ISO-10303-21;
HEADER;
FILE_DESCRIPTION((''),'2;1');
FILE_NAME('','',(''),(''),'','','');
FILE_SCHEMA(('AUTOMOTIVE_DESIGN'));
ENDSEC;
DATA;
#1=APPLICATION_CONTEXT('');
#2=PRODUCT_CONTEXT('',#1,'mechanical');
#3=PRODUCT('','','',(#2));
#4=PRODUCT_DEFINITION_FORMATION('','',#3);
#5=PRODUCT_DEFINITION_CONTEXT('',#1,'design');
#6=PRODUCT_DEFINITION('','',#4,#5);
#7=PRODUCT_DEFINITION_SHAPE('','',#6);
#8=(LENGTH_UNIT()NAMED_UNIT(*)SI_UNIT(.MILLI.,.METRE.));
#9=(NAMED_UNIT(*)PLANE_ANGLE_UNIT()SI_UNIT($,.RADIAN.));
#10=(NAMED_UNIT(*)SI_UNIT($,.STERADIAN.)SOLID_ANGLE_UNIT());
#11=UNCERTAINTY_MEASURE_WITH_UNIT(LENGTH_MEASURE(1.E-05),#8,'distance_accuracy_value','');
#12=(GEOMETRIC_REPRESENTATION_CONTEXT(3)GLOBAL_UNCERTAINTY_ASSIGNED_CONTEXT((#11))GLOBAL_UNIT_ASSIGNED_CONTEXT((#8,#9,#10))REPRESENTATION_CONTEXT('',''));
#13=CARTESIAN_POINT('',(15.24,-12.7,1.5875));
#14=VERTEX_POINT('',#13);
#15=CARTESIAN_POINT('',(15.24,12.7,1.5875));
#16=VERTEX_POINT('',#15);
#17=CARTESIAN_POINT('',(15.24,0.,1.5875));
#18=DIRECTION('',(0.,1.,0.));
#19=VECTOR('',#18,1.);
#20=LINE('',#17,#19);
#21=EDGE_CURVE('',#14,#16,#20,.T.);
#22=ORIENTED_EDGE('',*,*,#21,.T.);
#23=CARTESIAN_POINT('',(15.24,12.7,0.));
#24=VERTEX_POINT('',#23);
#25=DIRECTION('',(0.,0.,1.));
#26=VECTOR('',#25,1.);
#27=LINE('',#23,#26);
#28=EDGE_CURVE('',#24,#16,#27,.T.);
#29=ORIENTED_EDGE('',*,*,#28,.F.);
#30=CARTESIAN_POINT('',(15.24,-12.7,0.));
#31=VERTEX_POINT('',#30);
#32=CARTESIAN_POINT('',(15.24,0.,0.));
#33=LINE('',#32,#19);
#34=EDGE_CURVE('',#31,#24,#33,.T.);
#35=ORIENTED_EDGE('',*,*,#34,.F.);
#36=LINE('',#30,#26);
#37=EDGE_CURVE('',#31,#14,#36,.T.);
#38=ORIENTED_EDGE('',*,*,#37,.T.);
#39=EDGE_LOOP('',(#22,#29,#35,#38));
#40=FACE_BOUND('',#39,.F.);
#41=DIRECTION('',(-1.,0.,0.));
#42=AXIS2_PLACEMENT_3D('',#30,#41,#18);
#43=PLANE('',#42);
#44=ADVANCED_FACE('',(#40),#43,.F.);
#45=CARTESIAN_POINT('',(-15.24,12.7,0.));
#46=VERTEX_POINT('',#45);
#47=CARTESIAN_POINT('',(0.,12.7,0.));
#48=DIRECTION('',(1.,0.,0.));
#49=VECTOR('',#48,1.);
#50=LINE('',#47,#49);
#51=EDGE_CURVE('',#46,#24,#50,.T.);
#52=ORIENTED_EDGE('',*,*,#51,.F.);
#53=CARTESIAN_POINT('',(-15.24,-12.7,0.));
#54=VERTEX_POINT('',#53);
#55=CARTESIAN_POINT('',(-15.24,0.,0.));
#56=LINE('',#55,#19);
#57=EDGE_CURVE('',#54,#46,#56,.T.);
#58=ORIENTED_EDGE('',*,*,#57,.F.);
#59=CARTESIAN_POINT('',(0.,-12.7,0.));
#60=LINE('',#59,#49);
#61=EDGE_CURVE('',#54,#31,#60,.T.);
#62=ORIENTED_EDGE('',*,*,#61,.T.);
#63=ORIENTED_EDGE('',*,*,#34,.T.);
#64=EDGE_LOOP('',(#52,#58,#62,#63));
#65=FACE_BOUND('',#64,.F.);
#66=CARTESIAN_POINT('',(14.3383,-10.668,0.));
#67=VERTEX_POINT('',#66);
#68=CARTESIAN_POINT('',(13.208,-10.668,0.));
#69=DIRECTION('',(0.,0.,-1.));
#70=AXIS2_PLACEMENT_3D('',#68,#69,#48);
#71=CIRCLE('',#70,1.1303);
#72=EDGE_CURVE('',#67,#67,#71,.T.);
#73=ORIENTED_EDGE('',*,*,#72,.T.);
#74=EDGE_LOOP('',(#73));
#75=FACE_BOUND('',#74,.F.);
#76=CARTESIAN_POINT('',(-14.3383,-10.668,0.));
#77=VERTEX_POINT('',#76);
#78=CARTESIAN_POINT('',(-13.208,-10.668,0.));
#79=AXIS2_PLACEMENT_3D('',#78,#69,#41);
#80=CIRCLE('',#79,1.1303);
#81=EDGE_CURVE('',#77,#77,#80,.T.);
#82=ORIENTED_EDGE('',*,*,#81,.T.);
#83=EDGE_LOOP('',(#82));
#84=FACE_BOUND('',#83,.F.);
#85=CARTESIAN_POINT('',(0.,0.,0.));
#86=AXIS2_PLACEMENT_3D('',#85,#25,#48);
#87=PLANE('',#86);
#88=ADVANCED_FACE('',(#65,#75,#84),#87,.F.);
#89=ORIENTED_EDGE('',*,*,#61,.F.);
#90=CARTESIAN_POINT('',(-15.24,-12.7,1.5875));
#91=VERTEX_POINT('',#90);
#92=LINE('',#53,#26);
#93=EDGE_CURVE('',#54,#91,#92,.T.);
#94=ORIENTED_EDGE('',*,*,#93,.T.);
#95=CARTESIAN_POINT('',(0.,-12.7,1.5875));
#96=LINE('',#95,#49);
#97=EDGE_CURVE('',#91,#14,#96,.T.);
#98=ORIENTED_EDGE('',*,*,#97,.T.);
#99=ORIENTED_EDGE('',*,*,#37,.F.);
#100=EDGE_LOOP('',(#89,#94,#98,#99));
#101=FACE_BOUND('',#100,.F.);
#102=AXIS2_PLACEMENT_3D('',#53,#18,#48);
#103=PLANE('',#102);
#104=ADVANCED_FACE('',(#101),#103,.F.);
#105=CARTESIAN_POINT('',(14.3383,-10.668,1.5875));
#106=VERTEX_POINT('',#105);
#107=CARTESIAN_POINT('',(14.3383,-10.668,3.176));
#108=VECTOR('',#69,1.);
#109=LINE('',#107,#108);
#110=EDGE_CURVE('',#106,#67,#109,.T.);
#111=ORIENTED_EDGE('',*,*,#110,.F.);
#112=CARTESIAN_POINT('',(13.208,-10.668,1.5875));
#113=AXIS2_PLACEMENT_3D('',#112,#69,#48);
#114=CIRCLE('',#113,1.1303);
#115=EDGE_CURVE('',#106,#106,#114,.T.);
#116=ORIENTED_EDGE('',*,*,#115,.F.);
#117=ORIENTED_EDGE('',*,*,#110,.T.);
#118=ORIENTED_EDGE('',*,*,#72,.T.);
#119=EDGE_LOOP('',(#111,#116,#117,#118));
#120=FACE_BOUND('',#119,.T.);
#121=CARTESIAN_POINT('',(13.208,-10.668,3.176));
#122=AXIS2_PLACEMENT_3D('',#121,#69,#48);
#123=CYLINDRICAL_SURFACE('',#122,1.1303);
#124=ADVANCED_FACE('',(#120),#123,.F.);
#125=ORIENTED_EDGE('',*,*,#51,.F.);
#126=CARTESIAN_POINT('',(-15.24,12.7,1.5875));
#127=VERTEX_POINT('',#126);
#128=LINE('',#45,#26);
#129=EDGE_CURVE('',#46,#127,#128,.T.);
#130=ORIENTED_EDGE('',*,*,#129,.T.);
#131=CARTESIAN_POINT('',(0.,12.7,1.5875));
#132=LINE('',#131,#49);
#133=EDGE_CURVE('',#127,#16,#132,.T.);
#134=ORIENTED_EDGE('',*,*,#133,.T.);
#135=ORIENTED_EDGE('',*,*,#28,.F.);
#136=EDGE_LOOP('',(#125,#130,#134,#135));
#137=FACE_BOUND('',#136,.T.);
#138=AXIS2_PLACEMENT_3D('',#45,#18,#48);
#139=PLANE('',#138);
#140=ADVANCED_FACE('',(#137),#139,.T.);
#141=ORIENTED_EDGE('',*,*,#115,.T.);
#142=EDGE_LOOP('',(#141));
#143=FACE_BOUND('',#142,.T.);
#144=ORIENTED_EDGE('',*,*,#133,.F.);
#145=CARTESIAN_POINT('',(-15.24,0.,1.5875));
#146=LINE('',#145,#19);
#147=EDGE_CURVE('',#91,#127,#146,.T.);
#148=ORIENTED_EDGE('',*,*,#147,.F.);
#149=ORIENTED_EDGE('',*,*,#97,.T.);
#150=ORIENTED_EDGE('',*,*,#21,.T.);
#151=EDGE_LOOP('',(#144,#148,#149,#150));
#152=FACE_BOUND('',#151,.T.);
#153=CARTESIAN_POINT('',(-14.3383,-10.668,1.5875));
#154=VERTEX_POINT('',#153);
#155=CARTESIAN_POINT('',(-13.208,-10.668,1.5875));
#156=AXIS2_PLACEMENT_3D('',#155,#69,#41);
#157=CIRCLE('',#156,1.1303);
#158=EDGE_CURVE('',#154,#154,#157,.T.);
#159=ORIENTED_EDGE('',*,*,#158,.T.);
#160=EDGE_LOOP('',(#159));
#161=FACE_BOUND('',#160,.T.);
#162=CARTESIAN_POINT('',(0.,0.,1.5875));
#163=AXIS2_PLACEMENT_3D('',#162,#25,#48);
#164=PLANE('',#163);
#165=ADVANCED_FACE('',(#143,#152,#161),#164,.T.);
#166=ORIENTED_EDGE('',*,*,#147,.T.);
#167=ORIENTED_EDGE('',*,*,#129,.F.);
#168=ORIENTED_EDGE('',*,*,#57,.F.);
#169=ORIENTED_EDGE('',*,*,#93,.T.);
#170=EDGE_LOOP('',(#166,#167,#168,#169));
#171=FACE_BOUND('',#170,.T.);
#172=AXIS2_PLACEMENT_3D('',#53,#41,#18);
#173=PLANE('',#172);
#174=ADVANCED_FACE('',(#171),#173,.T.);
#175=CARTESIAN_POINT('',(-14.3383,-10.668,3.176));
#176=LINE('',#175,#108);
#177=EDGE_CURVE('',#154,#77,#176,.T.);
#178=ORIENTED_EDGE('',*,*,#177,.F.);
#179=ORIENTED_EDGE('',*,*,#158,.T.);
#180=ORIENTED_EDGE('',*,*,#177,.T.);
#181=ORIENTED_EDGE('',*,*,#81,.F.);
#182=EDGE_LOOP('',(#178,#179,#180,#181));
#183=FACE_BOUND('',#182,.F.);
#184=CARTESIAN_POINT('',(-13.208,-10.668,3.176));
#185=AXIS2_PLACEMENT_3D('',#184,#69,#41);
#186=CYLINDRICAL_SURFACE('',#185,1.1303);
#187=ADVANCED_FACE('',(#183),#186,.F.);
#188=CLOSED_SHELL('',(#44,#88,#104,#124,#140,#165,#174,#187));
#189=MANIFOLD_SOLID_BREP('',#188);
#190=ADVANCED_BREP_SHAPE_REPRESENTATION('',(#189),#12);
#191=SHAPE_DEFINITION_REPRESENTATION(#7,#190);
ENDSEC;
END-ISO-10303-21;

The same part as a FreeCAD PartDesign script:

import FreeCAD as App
import Part
import Sketcher
from FreeCAD import Vector
Q = App.Units.Quantity


def add_polygon(sketch, points):
    """Adds a closed chain of lines whose ends are joined by coincident constraints."""
    first, n = sketch.GeometryCount, len(points)
    for a, b in zip(points, points[1:] + points[:1]):
        sketch.addGeometry(Part.LineSegment(App.Vector(*a, 0), App.Vector(*b, 0)), False)
    for i in range(n):
        sketch.addConstraint(Sketcher.Constraint("Coincident", first + i, 2, first + (i + 1) % n, 1))

doc = App.newDocument("Part")
params = doc.addObject("Spreadsheet::Sheet", "Params")
for row, (alias, value) in enumerate([
    ("sketch1_height", "1 in"),
    ("sketch1_width", "1.2 in"),
    ("pad1_length", "0.0625 in"),
    ("sketch2_diameter", "0.089 in"),
    ("hole_diameter", "0.089 in"),
    ("hole_depth", "1.5885 mm"),
], start=1):
    params.set(f"A{row}", alias)
    params.set(f"B{row}", "=" + value)
    params.setAlias(f"B{row}", alias)

body = doc.addObject("PartDesign::Body", "Body")

sketch1 = body.newObject("Sketcher::SketchObject", "Sketch")
sketch1.AttachmentSupport = (doc.getObject("XY_Plane"), [""])
sketch1.MapMode = "FlatFace"
add_polygon(sketch1, [(-15, 13), (-15, -13), (15, -13), (15, 13)])
sketch1.addConstraint([
    Sketcher.Constraint("Vertical", 0),
    Sketcher.Constraint("Horizontal", 1),
    Sketcher.Constraint("Vertical", 2),
    Sketcher.Constraint("Horizontal", 3),
    Sketcher.Constraint("Symmetric", 0, 2, 2, 2, -1, 1),
    Sketcher.Constraint("DistanceY", 0, 2, 0, 1, Q("1 in")),
    Sketcher.Constraint("DistanceX", 1, 1, 1, 2, Q("1.2 in")),
])
sketch1.setExpression("Constraints[9]", "Params.sketch1_height")
sketch1.setExpression("Constraints[10]", "Params.sketch1_width")
pad1 = body.newObject("PartDesign::Pad", "Pad")
pad1.Profile = sketch1
pad1.setExpression("Length", "Params.pad1_length")

sketch2 = body.newObject("Sketcher::SketchObject", "Sketch001")
sketch2.AttachmentSupport = (doc.getObject("XY_Plane"), [""])
sketch2.MapMode = "FlatFace"
sketch2.AttachmentOffset = App.Placement(Vector(0, 0, 0.0625 * 25.4), App.Rotation())
sketch2.addGeometry(Part.Circle(Vector(-13.2, -10.7, 0), Vector(0, 0, 1), 1.1), False)
sketch2.addConstraint([
    Sketcher.Constraint("Diameter", 0, Q("0.089 in")),
    Sketcher.Constraint("DistanceX", 0, 3, -1, 1, Q("0.52 in")),
    Sketcher.Constraint("DistanceY", 0, 3, -1, 1, Q("0.42 in")),
])
sketch2.setExpression("Constraints[0]", "Params.sketch2_diameter")
doc.recompute()
hole = body.newObject("PartDesign::Hole", "Hole")
hole.Profile = sketch2
hole.ThreadType = "None"
hole.setExpression("Diameter", "Params.hole_diameter")
hole.DepthType = "Dimension"
hole.setExpression("Depth", "Params.hole_depth")
hole.DrillPoint = "Flat"
doc.recompute()

mirrored = body.newObject("PartDesign::Mirrored", "Mirrored")
mirrored.Originals = [hole]
mirrored.MirrorPlane = (doc.getObject("YZ_Plane"), [""])
body.Tip = mirrored

doc.recompute()
